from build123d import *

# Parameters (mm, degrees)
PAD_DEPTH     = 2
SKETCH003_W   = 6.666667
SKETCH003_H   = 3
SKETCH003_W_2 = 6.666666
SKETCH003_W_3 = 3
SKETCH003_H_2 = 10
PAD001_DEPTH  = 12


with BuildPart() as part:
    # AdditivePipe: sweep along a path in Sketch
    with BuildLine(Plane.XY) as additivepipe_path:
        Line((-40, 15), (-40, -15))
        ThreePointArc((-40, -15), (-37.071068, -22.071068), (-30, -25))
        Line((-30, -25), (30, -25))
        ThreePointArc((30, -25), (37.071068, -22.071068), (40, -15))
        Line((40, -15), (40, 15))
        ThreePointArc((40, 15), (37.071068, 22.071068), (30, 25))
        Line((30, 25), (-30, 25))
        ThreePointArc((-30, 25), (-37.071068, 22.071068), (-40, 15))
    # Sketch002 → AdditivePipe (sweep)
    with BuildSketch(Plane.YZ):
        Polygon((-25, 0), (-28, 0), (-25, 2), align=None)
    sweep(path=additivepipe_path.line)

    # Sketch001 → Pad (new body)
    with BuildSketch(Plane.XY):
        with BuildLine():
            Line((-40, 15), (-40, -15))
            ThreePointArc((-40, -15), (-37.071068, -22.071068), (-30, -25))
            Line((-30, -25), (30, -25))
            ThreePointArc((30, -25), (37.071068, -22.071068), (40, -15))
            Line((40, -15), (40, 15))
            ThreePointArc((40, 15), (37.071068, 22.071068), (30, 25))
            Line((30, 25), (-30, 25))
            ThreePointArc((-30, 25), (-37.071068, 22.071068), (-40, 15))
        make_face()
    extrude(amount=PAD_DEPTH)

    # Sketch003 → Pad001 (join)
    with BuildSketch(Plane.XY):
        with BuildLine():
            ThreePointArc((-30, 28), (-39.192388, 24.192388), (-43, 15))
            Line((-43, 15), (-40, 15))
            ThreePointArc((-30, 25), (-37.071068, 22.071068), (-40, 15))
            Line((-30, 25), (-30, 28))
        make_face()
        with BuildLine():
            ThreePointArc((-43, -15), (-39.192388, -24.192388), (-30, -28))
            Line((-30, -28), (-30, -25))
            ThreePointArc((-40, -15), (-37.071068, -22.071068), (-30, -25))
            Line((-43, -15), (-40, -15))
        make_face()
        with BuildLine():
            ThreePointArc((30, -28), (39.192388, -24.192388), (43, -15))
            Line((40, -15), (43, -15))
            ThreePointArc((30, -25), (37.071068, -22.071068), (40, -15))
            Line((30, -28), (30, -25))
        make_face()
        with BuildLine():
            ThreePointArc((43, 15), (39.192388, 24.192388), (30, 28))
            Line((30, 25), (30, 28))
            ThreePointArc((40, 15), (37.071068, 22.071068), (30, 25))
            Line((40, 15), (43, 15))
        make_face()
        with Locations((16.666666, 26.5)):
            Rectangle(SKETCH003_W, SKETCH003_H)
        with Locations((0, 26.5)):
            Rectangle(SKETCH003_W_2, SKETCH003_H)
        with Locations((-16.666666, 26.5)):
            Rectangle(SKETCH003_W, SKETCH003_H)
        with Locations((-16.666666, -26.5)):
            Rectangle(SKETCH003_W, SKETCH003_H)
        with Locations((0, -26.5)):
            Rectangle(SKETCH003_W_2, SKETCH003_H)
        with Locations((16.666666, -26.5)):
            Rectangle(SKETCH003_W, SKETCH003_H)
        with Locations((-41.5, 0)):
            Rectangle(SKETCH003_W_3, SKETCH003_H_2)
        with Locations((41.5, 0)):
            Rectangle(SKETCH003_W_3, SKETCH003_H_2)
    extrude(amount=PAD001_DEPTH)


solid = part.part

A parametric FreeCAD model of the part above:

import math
import FreeCAD as App
import Part
import Sketcher
from FreeCAD import Vector

doc = App.newDocument("Part")
body = doc.addObject("PartDesign::Body", "Body")

# Sketch on YZ plane
sketch1 = doc.addObject("Sketcher::SketchObject", "Sketch")
body.addObject(sketch1)
sketch1.AttachmentSupport = (doc.YZ_Plane, [""])
sketch1.MapMode = "FlatFace"
sketch1.addGeometry(Part.LineSegment(Vector(-28, 0, 0), Vector(-25, 0, 0)), False)
sketch1.addGeometry(Part.LineSegment(Vector(-25, 0, 0), Vector(-25, 2, 0)), False)
sketch1.addGeometry(Part.LineSegment(Vector(-25, 2, 0), Vector(-28, 0, 0)), False)
sketch1.addConstraint(Sketcher.Constraint("Coincident", 0, 2, 1, 1))
sketch1.addConstraint(Sketcher.Constraint("Coincident", 1, 2, 2, 1))
sketch1.addConstraint(Sketcher.Constraint("Coincident", 2, 2, 0, 1))
sketch1.addConstraint(Sketcher.Constraint("Horizontal", 0))
sketch1.addConstraint(Sketcher.Constraint("Vertical", 1))
sketch1.addConstraint(Sketcher.Constraint("PointOnObject", 0, 2, -1))
sketch1.addConstraint(Sketcher.Constraint("DistanceX", 0, 1, 0, 2, 3.0))
sketch1.addConstraint(Sketcher.Constraint("DistanceY", 1, 1, 1, 2, 2.0))
sketch1.addConstraint(Sketcher.Constraint("DistanceX", 0, 2, -1, 1, 25.0))

# Sketch on XY plane
sketch2 = doc.addObject("Sketcher::SketchObject", "Sketch001")
body.addObject(sketch2)
sketch2.AttachmentSupport = (doc.XY_Plane, [""])
sketch2.MapMode = "FlatFace"
sketch2.addGeometry(Part.LineSegment(Vector(-40, 15, 0), Vector(-40, -15, 0)), False)
sketch2.addGeometry(Part.ArcOfCircle(Part.Circle(Vector(-30, -15, 0), Vector(0, 0, 1), 10), math.radians(180), math.radians(270)), False)
sketch2.addGeometry(Part.LineSegment(Vector(-30, -25, 0), Vector(30, -25, 0)), False)
sketch2.addGeometry(Part.ArcOfCircle(Part.Circle(Vector(30, -15, 0), Vector(0, 0, 1), 10), math.radians(-90), math.radians(0)), False)
sketch2.addGeometry(Part.LineSegment(Vector(40, -15, 0), Vector(40, 15, 0)), False)
sketch2.addGeometry(Part.ArcOfCircle(Part.Circle(Vector(30, 15, 0), Vector(0, 0, 1), 10), math.radians(0), math.radians(90)), False)
sketch2.addGeometry(Part.LineSegment(Vector(30, 25, 0), Vector(-30, 25, 0)), False)
sketch2.addGeometry(Part.ArcOfCircle(Part.Circle(Vector(-30, 15, 0), Vector(0, 0, 1), 10), math.radians(90), math.radians(180)), False)
sketch2.addConstraint(Sketcher.Constraint("Tangent", 0, 2, 1, 1))
sketch2.addConstraint(Sketcher.Constraint("Tangent", 1, 2, 2, 1))
sketch2.addConstraint(Sketcher.Constraint("Tangent", 2, 2, 3, 1))
sketch2.addConstraint(Sketcher.Constraint("Tangent", 3, 2, 4, 1))
sketch2.addConstraint(Sketcher.Constraint("Tangent", 4, 2, 5, 1))
sketch2.addConstraint(Sketcher.Constraint("Tangent", 5, 2, 6, 1))
sketch2.addConstraint(Sketcher.Constraint("Tangent", 6, 2, 7, 1))
sketch2.addConstraint(Sketcher.Constraint("Tangent", 7, 2, 0, 1))
sketch2.addConstraint(Sketcher.Constraint("Vertical", 0))
sketch2.addConstraint(Sketcher.Constraint("Horizontal", 2))
sketch2.addConstraint(Sketcher.Constraint("Vertical", 4))
sketch2.addConstraint(Sketcher.Constraint("Horizontal", 6))
sketch2.addConstraint(Sketcher.Constraint("Equal", 1, 3))
sketch2.addConstraint(Sketcher.Constraint("Equal", 3, 5))
sketch2.addConstraint(Sketcher.Constraint("Equal", 5, 7))
sketch2.addConstraint(Sketcher.Constraint("Symmetric", 1, 3, 5, 3, -1, 1))
sketch2.addConstraint(Sketcher.Constraint("Radius", 1, 9.999999))
sketch2.addConstraint(Sketcher.Constraint("DistanceX", 2, 1, 2, 2, 60.0))
sketch2.addConstraint(Sketcher.Constraint("DistanceY", 0, 2, 0, 1, 30.0))
doc.recompute()

additivepipe = doc.addObject("PartDesign::AdditivePipe", "AdditivePipe")
body.addObject(additivepipe)
additivepipe.Profile = sketch1
additivepipe.Spine = (sketch2, ["Edge1", "Edge2", "Edge3", "Edge4", "Edge5", "Edge6", "Edge7", "Edge8"])

# Sketch on XY plane
sketch3 = doc.addObject("Sketcher::SketchObject", "Sketch002")
body.addObject(sketch3)
sketch3.AttachmentSupport = (doc.XY_Plane, [""])
sketch3.MapMode = "FlatFace"
sketch3.addGeometry(Part.LineSegment(Vector(-40, 15, 0), Vector(-40, -15, 0)), False)
sketch3.addGeometry(Part.ArcOfCircle(Part.Circle(Vector(-30, -15, 0), Vector(0, 0, 1), 10), math.radians(180), math.radians(270)), False)
sketch3.addGeometry(Part.LineSegment(Vector(-30, -25, 0), Vector(30, -25, 0)), False)
sketch3.addGeometry(Part.ArcOfCircle(Part.Circle(Vector(30, -15, 0), Vector(0, 0, 1), 10), math.radians(-90), math.radians(0)), False)
sketch3.addGeometry(Part.LineSegment(Vector(40, -15, 0), Vector(40, 15, 0)), False)
sketch3.addGeometry(Part.ArcOfCircle(Part.Circle(Vector(30, 15, 0), Vector(0, 0, 1), 10), math.radians(0), math.radians(90)), False)
sketch3.addGeometry(Part.LineSegment(Vector(30, 25, 0), Vector(-30, 25, 0)), False)
sketch3.addGeometry(Part.ArcOfCircle(Part.Circle(Vector(-30, 15, 0), Vector(0, 0, 1), 10), math.radians(90), math.radians(180)), False)
sketch3.addConstraint(Sketcher.Constraint("Tangent", 0, 2, 1, 1))
sketch3.addConstraint(Sketcher.Constraint("Tangent", 1, 2, 2, 1))
sketch3.addConstraint(Sketcher.Constraint("Tangent", 2, 2, 3, 1))
sketch3.addConstraint(Sketcher.Constraint("Tangent", 3, 2, 4, 1))
sketch3.addConstraint(Sketcher.Constraint("Tangent", 4, 2, 5, 1))
sketch3.addConstraint(Sketcher.Constraint("Tangent", 5, 2, 6, 1))
sketch3.addConstraint(Sketcher.Constraint("Tangent", 6, 2, 7, 1))
sketch3.addConstraint(Sketcher.Constraint("Tangent", 7, 2, 0, 1))
sketch3.addConstraint(Sketcher.Constraint("Vertical", 0))
sketch3.addConstraint(Sketcher.Constraint("Horizontal", 2))
sketch3.addConstraint(Sketcher.Constraint("Vertical", 4))
sketch3.addConstraint(Sketcher.Constraint("Horizontal", 6))
sketch3.addConstraint(Sketcher.Constraint("Equal", 1, 3))
sketch3.addConstraint(Sketcher.Constraint("Equal", 3, 5))
sketch3.addConstraint(Sketcher.Constraint("Equal", 5, 7))
sketch3.addConstraint(Sketcher.Constraint("Symmetric", 1, 3, 5, 3, -1, 1))
sketch3.addConstraint(Sketcher.Constraint("Radius", 1, 9.999999))
sketch3.addConstraint(Sketcher.Constraint("DistanceX", 2, 1, 2, 2, 60.0))
sketch3.addConstraint(Sketcher.Constraint("DistanceY", 0, 2, 0, 1, 30.0))
pad1 = doc.addObject("PartDesign::Pad", "Pad")
body.addObject(pad1)
pad1.Profile = sketch3
pad1.Length = 2

# Sketch on XY plane
sketch4 = doc.addObject("Sketcher::SketchObject", "Sketch003")
body.addObject(sketch4)
sketch4.AttachmentSupport = (doc.XY_Plane, [""])
sketch4.MapMode = "FlatFace"
sketch4.addGeometry(Part.ArcOfCircle(Part.Circle(Vector(-30, 15, 0), Vector(0, 0, 1), 13), math.radians(90), math.radians(180)), False)
sketch4.addGeometry(Part.LineSegment(Vector(-43, 15, 0), Vector(-40, 15, 0)), False)
sketch4.addGeometry(Part.ArcOfCircle(Part.Circle(Vector(-30, 15, 0), Vector(0, 0, 1), 10), math.radians(90), math.radians(180)), False)
sketch4.addGeometry(Part.LineSegment(Vector(-30, 25, 0), Vector(-30, 28, 0)), False)
sketch4.addGeometry(Part.ArcOfCircle(Part.Circle(Vector(-30, -15, 0), Vector(0, 0, 1), 13), math.radians(-180), math.radians(-90)), False)
sketch4.addGeometry(Part.LineSegment(Vector(-30, -28, 0), Vector(-30, -25, 0)), False)
sketch4.addGeometry(Part.ArcOfCircle(Part.Circle(Vector(-30, -15, 0), Vector(0, 0, 1), 10), math.radians(180), math.radians(270)), False)
sketch4.addGeometry(Part.LineSegment(Vector(-40, -15, 0), Vector(-43, -15, 0)), False)
sketch4.addGeometry(Part.ArcOfCircle(Part.Circle(Vector(30, -15, 0), Vector(0, 0, 1), 13), math.radians(-90), math.radians(0)), False)
sketch4.addGeometry(Part.LineSegment(Vector(43, -15, 0), Vector(40, -15, 0)), False)
sketch4.addGeometry(Part.ArcOfCircle(Part.Circle(Vector(30, -15, 0), Vector(0, 0, 1), 10), math.radians(-90), math.radians(0)), False)
sketch4.addGeometry(Part.LineSegment(Vector(30, -25, 0), Vector(30, -28, 0)), False)
sketch4.addGeometry(Part.ArcOfCircle(Part.Circle(Vector(30, 15, 0), Vector(0, 0, 1), 13), math.radians(0), math.radians(90)), False)
sketch4.addGeometry(Part.LineSegment(Vector(30, 28, 0), Vector(30, 25, 0)), False)
sketch4.addGeometry(Part.ArcOfCircle(Part.Circle(Vector(30, 15, 0), Vector(0, 0, 1), 10), math.radians(0), math.radians(90)), False)
sketch4.addGeometry(Part.LineSegment(Vector(40, 15, 0), Vector(43, 15, 0)), False)
sketch4.addGeometry(Part.LineSegment(Vector(13.3, 28, 0), Vector(13.3, 25, 0)), False)
sketch4.addGeometry(Part.LineSegment(Vector(13.3, 25, 0), Vector(20, 25, 0)), False)
sketch4.addGeometry(Part.LineSegment(Vector(20, 25, 0), Vector(20, 28, 0)), False)
sketch4.addGeometry(Part.LineSegment(Vector(20, 28, 0), Vector(13.3, 28, 0)), False)
sketch4.addGeometry(Part.LineSegment(Vector(-3.3, 28, 0), Vector(-3.3, 25, 0)), False)
sketch4.addGeometry(Part.LineSegment(Vector(-3.3, 25, 0), Vector(3.3, 25, 0)), False)
sketch4.addGeometry(Part.LineSegment(Vector(3.3, 25, 0), Vector(3.3, 28, 0)), False)
sketch4.addGeometry(Part.LineSegment(Vector(3.3, 28, 0), Vector(-3.3, 28, 0)), False)
sketch4.addGeometry(Part.LineSegment(Vector(-20, 28, 0), Vector(-20, 25, 0)), False)
sketch4.addGeometry(Part.LineSegment(Vector(-20, 25, 0), Vector(-13.3, 25, 0)), False)
sketch4.addGeometry(Part.LineSegment(Vector(-13.3, 25, 0), Vector(-13.3, 28, 0)), False)
sketch4.addGeometry(Part.LineSegment(Vector(-13.3, 28, 0), Vector(-20, 28, 0)), False)
sketch4.addGeometry(Part.LineSegment(Vector(-20, -25, 0), Vector(-20, -28, 0)), False)
sketch4.addGeometry(Part.LineSegment(Vector(-20, -28, 0), Vector(-13.3, -28, 0)), False)
sketch4.addGeometry(Part.LineSegment(Vector(-13.3, -28, 0), Vector(-13.3, -25, 0)), False)
sketch4.addGeometry(Part.LineSegment(Vector(-13.3, -25, 0), Vector(-20, -25, 0)), False)
sketch4.addGeometry(Part.LineSegment(Vector(-3.3, -25, 0), Vector(-3.3, -28, 0)), False)
sketch4.addGeometry(Part.LineSegment(Vector(-3.3, -28, 0), Vector(3.3, -28, 0)), False)
sketch4.addGeometry(Part.LineSegment(Vector(3.3, -28, 0), Vector(3.3, -25, 0)), False)
sketch4.addGeometry(Part.LineSegment(Vector(3.3, -25, 0), Vector(-3.3, -25, 0)), False)
sketch4.addGeometry(Part.LineSegment(Vector(13.3, -25, 0), Vector(13.3, -28, 0)), False)
sketch4.addGeometry(Part.LineSegment(Vector(13.3, -28, 0), Vector(20, -28, 0)), False)
sketch4.addGeometry(Part.LineSegment(Vector(20, -28, 0), Vector(20, -25, 0)), False)
sketch4.addGeometry(Part.LineSegment(Vector(20, -25, 0), Vector(13.3, -25, 0)), False)
sketch4.addGeometry(Part.LineSegment(Vector(-43, 5, 0), Vector(-43, -5, 0)), False)
sketch4.addGeometry(Part.LineSegment(Vector(-43, -5, 0), Vector(-40, -5, 0)), False)
sketch4.addGeometry(Part.LineSegment(Vector(-40, -5, 0), Vector(-40, 5, 0)), False)
sketch4.addGeometry(Part.LineSegment(Vector(-40, 5, 0), Vector(-43, 5, 0)), False)
sketch4.addGeometry(Part.LineSegment(Vector(40, 5, 0), Vector(40, -5, 0)), False)
sketch4.addGeometry(Part.LineSegment(Vector(40, -5, 0), Vector(43, -5, 0)), False)
sketch4.addGeometry(Part.LineSegment(Vector(43, -5, 0), Vector(43, 5, 0)), False)
sketch4.addGeometry(Part.LineSegment(Vector(43, 5, 0), Vector(40, 5, 0)), False)
sketch4.addConstraint(Sketcher.Constraint("Coincident", 0, 2, 1, 1))
sketch4.addConstraint(Sketcher.Constraint("Coincident", 1, 2, 2, 2))
sketch4.addConstraint(Sketcher.Constraint("Coincident", 2, 1, 3, 1))
sketch4.addConstraint(Sketcher.Constraint("Coincident", 3, 2, 0, 1))
sketch4.addConstraint(Sketcher.Constraint("Coincident", 4, 2, 5, 1))
sketch4.addConstraint(Sketcher.Constraint("Coincident", 5, 2, 6, 2))
sketch4.addConstraint(Sketcher.Constraint("Coincident", 6, 1, 7, 1))
sketch4.addConstraint(Sketcher.Constraint("Coincident", 7, 2, 4, 1))
sketch4.addConstraint(Sketcher.Constraint("Coincident", 8, 2, 9, 1))
sketch4.addConstraint(Sketcher.Constraint("Coincident", 9, 2, 10, 2))
sketch4.addConstraint(Sketcher.Constraint("Coincident", 10, 1, 11, 1))
sketch4.addConstraint(Sketcher.Constraint("Coincident", 11, 2, 8, 1))
sketch4.addConstraint(Sketcher.Constraint("Coincident", 12, 2, 13, 1))
sketch4.addConstraint(Sketcher.Constraint("Coincident", 13, 2, 14, 2))
sketch4.addConstraint(Sketcher.Constraint("Coincident", 14, 1, 15, 1))
sketch4.addConstraint(Sketcher.Constraint("Coincident", 15, 2, 12, 1))
sketch4.addConstraint(Sketcher.Constraint("Coincident", 16, 2, 17, 1))
sketch4.addConstraint(Sketcher.Constraint("Coincident", 17, 2, 18, 1))
sketch4.addConstraint(Sketcher.Constraint("Coincident", 18, 2, 19, 1))
sketch4.addConstraint(Sketcher.Constraint("Coincident", 19, 2, 16, 1))
sketch4.addConstraint(Sketcher.Constraint("Coincident", 20, 2, 21, 1))
sketch4.addConstraint(Sketcher.Constraint("Coincident", 21, 2, 22, 1))
sketch4.addConstraint(Sketcher.Constraint("Coincident", 22, 2, 23, 1))
sketch4.addConstraint(Sketcher.Constraint("Coincident", 23, 2, 20, 1))
sketch4.addConstraint(Sketcher.Constraint("Coincident", 24, 2, 25, 1))
sketch4.addConstraint(Sketcher.Constraint("Coincident", 25, 2, 26, 1))
sketch4.addConstraint(Sketcher.Constraint("Coincident", 26, 2, 27, 1))
sketch4.addConstraint(Sketcher.Constraint("Coincident", 27, 2, 24, 1))
sketch4.addConstraint(Sketcher.Constraint("Coincident", 28, 2, 29, 1))
sketch4.addConstraint(Sketcher.Constraint("Coincident", 29, 2, 30, 1))
sketch4.addConstraint(Sketcher.Constraint("Coincident", 30, 2, 31, 1))
sketch4.addConstraint(Sketcher.Constraint("Coincident", 31, 2, 28, 1))
sketch4.addConstraint(Sketcher.Constraint("Coincident", 32, 2, 33, 1))
sketch4.addConstraint(Sketcher.Constraint("Coincident", 33, 2, 34, 1))
sketch4.addConstraint(Sketcher.Constraint("Coincident", 34, 2, 35, 1))
sketch4.addConstraint(Sketcher.Constraint("Coincident", 35, 2, 32, 1))
sketch4.addConstraint(Sketcher.Constraint("Coincident", 36, 2, 37, 1))
sketch4.addConstraint(Sketcher.Constraint("Coincident", 37, 2, 38, 1))
sketch4.addConstraint(Sketcher.Constraint("Coincident", 38, 2, 39, 1))
sketch4.addConstraint(Sketcher.Constraint("Coincident", 39, 2, 36, 1))
sketch4.addConstraint(Sketcher.Constraint("Coincident", 40, 2, 41, 1))
sketch4.addConstraint(Sketcher.Constraint("Coincident", 41, 2, 42, 1))
sketch4.addConstraint(Sketcher.Constraint("Coincident", 42, 2, 43, 1))
sketch4.addConstraint(Sketcher.Constraint("Coincident", 43, 2, 40, 1))
sketch4.addConstraint(Sketcher.Constraint("Coincident", 44, 2, 45, 1))
sketch4.addConstraint(Sketcher.Constraint("Coincident", 45, 2, 46, 1))
sketch4.addConstraint(Sketcher.Constraint("Coincident", 46, 2, 47, 1))
sketch4.addConstraint(Sketcher.Constraint("Coincident", 47, 2, 44, 1))
sketch4.addConstraint(Sketcher.Constraint("Horizontal", 1))
sketch4.addConstraint(Sketcher.Constraint("Vertical", 3))
sketch4.addConstraint(Sketcher.Constraint("Vertical", 5))
sketch4.addConstraint(Sketcher.Constraint("Horizontal", 7))
sketch4.addConstraint(Sketcher.Constraint("Horizontal", 9))
sketch4.addConstraint(Sketcher.Constraint("Vertical", 11))
sketch4.addConstraint(Sketcher.Constraint("Vertical", 13))
sketch4.addConstraint(Sketcher.Constraint("Horizontal", 15))
sketch4.addConstraint(Sketcher.Constraint("Vertical", 16))
sketch4.addConstraint(Sketcher.Constraint("Horizontal", 17))
sketch4.addConstraint(Sketcher.Constraint("Vertical", 18))
sketch4.addConstraint(Sketcher.Constraint("Horizontal", 19))
sketch4.addConstraint(Sketcher.Constraint("Vertical", 20))
sketch4.addConstraint(Sketcher.Constraint("Horizontal", 21))
sketch4.addConstraint(Sketcher.Constraint("Vertical", 22))
sketch4.addConstraint(Sketcher.Constraint("Horizontal", 23))
sketch4.addConstraint(Sketcher.Constraint("Vertical", 24))
sketch4.addConstraint(Sketcher.Constraint("Horizontal", 25))
sketch4.addConstraint(Sketcher.Constraint("Vertical", 26))
sketch4.addConstraint(Sketcher.Constraint("Horizontal", 27))
sketch4.addConstraint(Sketcher.Constraint("Vertical", 28))
sketch4.addConstraint(Sketcher.Constraint("Horizontal", 29))
sketch4.addConstraint(Sketcher.Constraint("Vertical", 30))
sketch4.addConstraint(Sketcher.Constraint("Horizontal", 31))
sketch4.addConstraint(Sketcher.Constraint("Vertical", 32))
sketch4.addConstraint(Sketcher.Constraint("Horizontal", 33))
sketch4.addConstraint(Sketcher.Constraint("Vertical", 34))
sketch4.addConstraint(Sketcher.Constraint("Horizontal", 35))
sketch4.addConstraint(Sketcher.Constraint("Vertical", 36))
sketch4.addConstraint(Sketcher.Constraint("Horizontal", 37))
sketch4.addConstraint(Sketcher.Constraint("Vertical", 38))
sketch4.addConstraint(Sketcher.Constraint("Horizontal", 39))
sketch4.addConstraint(Sketcher.Constraint("Vertical", 40))
sketch4.addConstraint(Sketcher.Constraint("Horizontal", 41))
sketch4.addConstraint(Sketcher.Constraint("Vertical", 42))
sketch4.addConstraint(Sketcher.Constraint("Horizontal", 43))
sketch4.addConstraint(Sketcher.Constraint("Vertical", 44))
sketch4.addConstraint(Sketcher.Constraint("Horizontal", 45))
sketch4.addConstraint(Sketcher.Constraint("Vertical", 46))
sketch4.addConstraint(Sketcher.Constraint("Horizontal", 47))
sketch4.addConstraint(Sketcher.Constraint("Coincident", 2, 3, 0, 3))
sketch4.addConstraint(Sketcher.Constraint("Coincident", 6, 3, 4, 3))
sketch4.addConstraint(Sketcher.Constraint("Coincident", 10, 3, 8, 3))
sketch4.addConstraint(Sketcher.Constraint("Coincident", 14, 3, 12, 3))
sketch4.addConstraint(Sketcher.Constraint("Equal", 0, 4))
sketch4.addConstraint(Sketcher.Constraint("Equal", 2, 6))
sketch4.addConstraint(Sketcher.Constraint("Equal", 4, 8))
sketch4.addConstraint(Sketcher.Constraint("Equal", 6, 10))
sketch4.addConstraint(Sketcher.Constraint("Equal", 8, 12))
sketch4.addConstraint(Sketcher.Constraint("Equal", 10, 14))
sketch4.addConstraint(Sketcher.Constraint("Symmetric", 0, 3, 8, 3, -1, 1))
sketch4.addConstraint(Sketcher.Constraint("Symmetric", 4, 3, 12, 3, -1, 1))
sketch4.addConstraint(Sketcher.Constraint("Symmetric", 18, 2, 28, 2, -1, 1))
sketch4.addConstraint(Sketcher.Constraint("Symmetric", 16, 2, 30, 2, -1, 1))
sketch4.addConstraint(Sketcher.Constraint("Symmetric", 22, 2, 32, 2, -1, 1))
sketch4.addConstraint(Sketcher.Constraint("Symmetric", 20, 2, 34, 2, -1, 1))
sketch4.addConstraint(Sketcher.Constraint("Symmetric", 26, 2, 36, 2, -1, 1))
sketch4.addConstraint(Sketcher.Constraint("Symmetric", 24, 2, 38, 2, -1, 1))
sketch4.addConstraint(Sketcher.Constraint("Symmetric", 42, 2, 44, 2, -1, 1))
sketch4.addConstraint(Sketcher.Constraint("Symmetric", 40, 2, 46, 2, -1, 1))
sketch4.addConstraint(Sketcher.Constraint("Symmetric", 4, 3, 8, 3, -2))
sketch4.addConstraint(Sketcher.Constraint("Symmetric", 17, 2, 24, 2, -2))
sketch4.addConstraint(Sketcher.Constraint("Symmetric", 19, 2, 26, 2, -2))
sketch4.addConstraint(Sketcher.Constraint("Horizontal", 14, 3, 0, 2))
sketch4.addConstraint(Sketcher.Constraint("Horizontal", 10, 3, 6, 1))
sketch4.addConstraint(Sketcher.Constraint("Horizontal", 7, 2, 8, 2))
sketch4.addConstraint(Sketcher.Constraint("Horizontal", 1, 2, 14, 1))
sketch4.addConstraint(Sketcher.Constraint("Horizontal", 13, 2, 16, 2))
sketch4.addConstraint(Sketcher.Constraint("Horizontal", 12, 2, 18, 2))
sketch4.addConstraint(Sketcher.Constraint("Horizontal", 17, 2, 20, 2))
sketch4.addConstraint(Sketcher.Constraint("Horizontal", 19, 2, 22, 2))
sketch4.addConstraint(Sketcher.Constraint("Horizontal", 41, 2, 44, 2))
sketch4.addConstraint(Sketcher.Constraint("Vertical", 6, 3, 2, 1))
sketch4.addConstraint(Sketcher.Constraint("Vertical", 3, 2, 4, 2))
sketch4.addConstraint(Sketcher.Constraint("Vertical", 14, 3, 10, 1))
sketch4.addConstraint(Sketcher.Constraint("Vertical", 11, 2, 12, 2))
sketch4.addConstraint(Sketcher.Constraint("Vertical", 23, 2, 32, 2))
sketch4.addConstraint(Sketcher.Constraint("Vertical", 7, 2, 40, 2))
sketch4.addConstraint(Sketcher.Constraint("Vertical", 6, 1, 41, 2))
sketch4.addConstraint(Sketcher.Constraint("Equal", 19, 21))
sketch4.addConstraint(Sketcher.Constraint("Radius", 0, 13.000001))
sketch4.addConstraint(Sketcher.Constraint("Radius", 2, 9.999999))
sketch4.addConstraint(Sketcher.Constraint("DistanceY", 40, 2, 40, 1, 10.0))
sketch4.addConstraint(Sketcher.Constraint("DistanceX", 0, 3, -1, 1, 29.999999))
sketch4.addConstraint(Sketcher.Constraint("DistanceY", -1, 1, 0, 3, 14.999999))
sketch4.addConstraint(Sketcher.Constraint("DistanceX", -1, 1, 17, 2, 20.0))
sketch4.addConstraint(Sketcher.Constraint("DistanceX", 21, 2, 16, 2, 9.999999))
pad2 = doc.addObject("PartDesign::Pad", "Pad001")
body.addObject(pad2)
pad2.Profile = sketch4
pad2.Length = 12

doc.recompute()
